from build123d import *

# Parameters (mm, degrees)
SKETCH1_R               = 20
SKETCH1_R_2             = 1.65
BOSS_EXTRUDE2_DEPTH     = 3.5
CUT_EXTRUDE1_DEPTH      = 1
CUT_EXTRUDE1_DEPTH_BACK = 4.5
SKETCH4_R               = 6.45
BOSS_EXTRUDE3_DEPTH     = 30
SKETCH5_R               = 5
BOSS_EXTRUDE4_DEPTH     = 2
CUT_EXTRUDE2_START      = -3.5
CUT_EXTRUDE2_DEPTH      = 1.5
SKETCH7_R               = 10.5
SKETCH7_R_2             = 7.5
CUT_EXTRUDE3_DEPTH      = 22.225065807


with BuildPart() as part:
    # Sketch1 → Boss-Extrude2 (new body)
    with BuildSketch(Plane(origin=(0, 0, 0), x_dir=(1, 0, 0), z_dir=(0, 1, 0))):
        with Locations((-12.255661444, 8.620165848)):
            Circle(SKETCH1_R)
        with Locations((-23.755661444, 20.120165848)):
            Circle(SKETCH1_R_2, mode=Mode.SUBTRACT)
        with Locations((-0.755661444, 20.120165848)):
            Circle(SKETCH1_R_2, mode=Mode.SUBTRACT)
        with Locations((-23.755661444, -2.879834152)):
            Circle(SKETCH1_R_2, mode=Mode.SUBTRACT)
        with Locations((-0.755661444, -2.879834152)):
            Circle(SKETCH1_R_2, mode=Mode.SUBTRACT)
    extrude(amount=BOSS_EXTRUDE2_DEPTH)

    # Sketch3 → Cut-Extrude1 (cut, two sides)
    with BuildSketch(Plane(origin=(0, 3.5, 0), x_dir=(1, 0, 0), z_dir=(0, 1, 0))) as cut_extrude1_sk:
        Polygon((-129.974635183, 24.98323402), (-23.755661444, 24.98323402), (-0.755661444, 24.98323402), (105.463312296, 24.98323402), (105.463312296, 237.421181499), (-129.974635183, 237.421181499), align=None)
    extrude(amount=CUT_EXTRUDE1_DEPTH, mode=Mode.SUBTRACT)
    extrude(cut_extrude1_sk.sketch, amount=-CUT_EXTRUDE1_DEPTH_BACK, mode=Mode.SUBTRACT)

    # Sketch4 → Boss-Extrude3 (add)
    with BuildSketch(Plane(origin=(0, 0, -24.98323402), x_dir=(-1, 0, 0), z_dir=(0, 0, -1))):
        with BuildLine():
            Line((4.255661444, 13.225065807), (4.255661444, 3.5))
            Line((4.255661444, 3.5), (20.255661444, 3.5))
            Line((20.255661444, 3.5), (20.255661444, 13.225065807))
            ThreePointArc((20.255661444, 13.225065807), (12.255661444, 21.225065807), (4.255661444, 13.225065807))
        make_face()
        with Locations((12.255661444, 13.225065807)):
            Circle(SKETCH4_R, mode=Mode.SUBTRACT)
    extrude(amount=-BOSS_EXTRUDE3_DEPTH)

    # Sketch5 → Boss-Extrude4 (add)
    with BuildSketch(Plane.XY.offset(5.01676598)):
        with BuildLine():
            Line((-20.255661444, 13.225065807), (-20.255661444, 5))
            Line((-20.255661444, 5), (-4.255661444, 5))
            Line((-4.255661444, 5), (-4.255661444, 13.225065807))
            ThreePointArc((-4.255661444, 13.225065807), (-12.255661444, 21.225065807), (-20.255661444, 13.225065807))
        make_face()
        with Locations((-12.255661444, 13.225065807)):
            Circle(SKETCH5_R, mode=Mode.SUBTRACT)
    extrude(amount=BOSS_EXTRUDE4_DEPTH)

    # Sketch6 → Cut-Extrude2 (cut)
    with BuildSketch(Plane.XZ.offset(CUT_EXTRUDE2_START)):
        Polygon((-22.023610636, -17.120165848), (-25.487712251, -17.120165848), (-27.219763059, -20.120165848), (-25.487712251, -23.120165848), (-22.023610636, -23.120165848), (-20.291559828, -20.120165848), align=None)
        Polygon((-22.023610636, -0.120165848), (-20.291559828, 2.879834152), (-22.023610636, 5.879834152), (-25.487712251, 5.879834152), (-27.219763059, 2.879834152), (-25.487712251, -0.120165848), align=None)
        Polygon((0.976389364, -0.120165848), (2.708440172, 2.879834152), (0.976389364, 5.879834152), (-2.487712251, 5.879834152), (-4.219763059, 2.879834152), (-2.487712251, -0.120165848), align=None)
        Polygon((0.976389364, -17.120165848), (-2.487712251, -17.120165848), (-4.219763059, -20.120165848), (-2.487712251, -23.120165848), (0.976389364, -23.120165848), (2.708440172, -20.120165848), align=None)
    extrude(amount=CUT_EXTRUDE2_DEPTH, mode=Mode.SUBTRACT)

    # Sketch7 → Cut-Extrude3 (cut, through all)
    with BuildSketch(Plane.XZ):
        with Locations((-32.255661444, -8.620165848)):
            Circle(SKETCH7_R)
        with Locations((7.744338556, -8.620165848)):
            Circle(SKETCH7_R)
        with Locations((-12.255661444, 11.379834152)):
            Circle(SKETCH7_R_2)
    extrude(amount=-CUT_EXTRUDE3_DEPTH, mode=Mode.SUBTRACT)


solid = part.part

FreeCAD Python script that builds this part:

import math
import FreeCAD as App
import Part
import Sketcher
from FreeCAD import Vector
Q = App.Units.Quantity

doc = App.newDocument("Part")
body = doc.addObject("PartDesign::Body", "Body")

# Sketch on XZ plane
sketch1 = body.newObject("Sketcher::SketchObject", "Sketch")
sketch1.AttachmentSupport = (doc.getObject("XZ_Plane"), [""])
sketch1.MapMode = "FlatFace"
sketch1.addGeometry([
    Part.Circle(Vector(-12.3, -8.6, 0), Vector(0, 0, 1), 20),  # 0
    Part.Circle(Vector(-23.8, 2.9, 0), Vector(0, 0, 1), 1.6),  # 1
    Part.Circle(Vector(-0.8, 2.9, 0), Vector(0, 0, 1), 1.6),  # 2
    Part.Circle(Vector(-23.8, -20.1, 0), Vector(0, 0, 1), 1.6),  # 3
    Part.Circle(Vector(-0.8, -20.1, 0), Vector(0, 0, 1), 1.6),  # 4
], False)
sketch1.addConstraint([
    Sketcher.Constraint("Equal", 1, 2),
    Sketcher.Constraint("Equal", 2, 3),
    Sketcher.Constraint("Equal", 3, 4),
    Sketcher.Constraint("Horizontal", 1, 3, 2, 3),
    Sketcher.Constraint("Horizontal", 3, 3, 4, 3),
    Sketcher.Constraint("Vertical", 1, 3, 3, 3),
    Sketcher.Constraint("Vertical", 2, 3, 4, 3),
    Sketcher.Constraint("Diameter", 0, 40.0),
    Sketcher.Constraint("Diameter", 1, 3.3),
    Sketcher.Constraint("DistanceX", 1, 3, 2, 3, 23.0),
    Sketcher.Constraint("DistanceY", 3, 3, 1, 3, 23.0),
    Sketcher.Constraint("DistanceX", 1, 3, 0, 3, 11.5),
    Sketcher.Constraint("DistanceY", 0, 3, 1, 3, 11.5),
    Sketcher.Constraint("DistanceX", 0, 3, -1, 1, 12.255661),
    Sketcher.Constraint("DistanceY", 0, 3, -1, 1, 8.620166),
])
pad1 = body.newObject("PartDesign::Pad", "Pad")
pad1.Profile = sketch1
pad1.Length = 3.5
pad1.Reversed = True

# Sketch on XZ plane
sketch2 = body.newObject("Sketcher::SketchObject", "Sketch001")
sketch2.AttachmentSupport = (doc.getObject("XZ_Plane"), [""])
sketch2.MapMode = "FlatFace"
sketch2.AttachmentOffset = App.Placement(Vector(0, 0, -3.5), App.Rotation())
sketch2.addGeometry([
    Part.LineSegment(Vector(-130, -25, 0), Vector(105, -25, 0)),
    Part.LineSegment(Vector(105, -25, 0), Vector(105, -237, 0)),
    Part.LineSegment(Vector(105, -237, 0), Vector(-130, -237, 0)),
    Part.LineSegment(Vector(-130, -237, 0), Vector(-130, -25, 0)),
], False)
sketch2.addConstraint([
    Sketcher.Constraint("Coincident", 0, 2, 1, 1),
    Sketcher.Constraint("Coincident", 1, 2, 2, 1),
    Sketcher.Constraint("Coincident", 2, 2, 3, 1),
    Sketcher.Constraint("Coincident", 3, 2, 0, 1),
    Sketcher.Constraint("Horizontal", 0),
    Sketcher.Constraint("Vertical", 1),
    Sketcher.Constraint("Horizontal", 2),
    Sketcher.Constraint("Vertical", 3),
    Sketcher.Constraint("DistanceX", 0, 1, 0, 2, 235.437947),
    Sketcher.Constraint("DistanceY", 1, 2, 1, 1, 212.437947),
    Sketcher.Constraint("DistanceY", 1, 2, -1, 1, 237.421181),
    Sketcher.Constraint("DistanceX", -1, 1, 0, 2, 105.463312),
])
pocket1 = body.newObject("PartDesign::Pocket", "Pocket")
pocket1.Profile = sketch2
pocket1.Type = "ThroughAll"
pocket1.Midplane = True

# Sketch on XY plane
sketch3 = body.newObject("Sketcher::SketchObject", "Sketch002")
sketch3.AttachmentSupport = (doc.getObject("XY_Plane"), [""])
sketch3.MapMode = "FlatFace"
sketch3.AttachmentOffset = App.Placement(Vector(0, 0, -24.983234), App.Rotation())
sketch3.addGeometry([
    Part.LineSegment(Vector(-4, 13, 0), Vector(-4, 4, 0)),  # 0
    Part.LineSegment(Vector(-4, 4, 0), Vector(-20, 4, 0)),  # 1
    Part.LineSegment(Vector(-20, 4, 0), Vector(-20, 13, 0)),  # 2
    Part.ArcOfCircle(Part.Circle(Vector(-12, 13, 0), Vector(0, 0, 1), 8), math.radians(0), math.radians(180)),  # 3
    Part.Circle(Vector(-12, 13, 0), Vector(0, 0, 1), 6),  # 4
], False)
sketch3.addConstraint([
    Sketcher.Constraint("Coincident", 0, 2, 1, 1),
    Sketcher.Constraint("Coincident", 1, 2, 2, 1),
    Sketcher.Constraint("Tangent", 2, 2, 3, 2),
    Sketcher.Constraint("Tangent", 3, 1, 0, 1),
    Sketcher.Constraint("Vertical", 0),
    Sketcher.Constraint("Horizontal", 1),
    Sketcher.Constraint("Vertical", 2),
    Sketcher.Constraint("Coincident", 4, 3, 3, 3),
    Sketcher.Constraint("Radius", 3, 8.0),
    Sketcher.Constraint("Diameter", 4, 12.9),
    Sketcher.Constraint("DistanceY", -1, 1, 0, 2, 3.5),
    Sketcher.Constraint("DistanceY", 0, 2, 0, 1, 9.725066),
    Sketcher.Constraint("DistanceX", 3, 3, -1, 1, 12.255661),
])
pad2 = body.newObject("PartDesign::Pad", "Pad001")
pad2.Profile = sketch3
pad2.Length = 30

# Sketch on XY plane
sketch4 = body.newObject("Sketcher::SketchObject", "Sketch003")
sketch4.AttachmentSupport = (doc.getObject("XY_Plane"), [""])
sketch4.MapMode = "FlatFace"
sketch4.AttachmentOffset = App.Placement(Vector(0, 0, 5.016766), App.Rotation())
sketch4.addGeometry([
    Part.LineSegment(Vector(-20, 13, 0), Vector(-20, 5, 0)),  # 0
    Part.LineSegment(Vector(-20, 5, 0), Vector(-4, 5, 0)),  # 1
    Part.LineSegment(Vector(-4, 5, 0), Vector(-4, 13, 0)),  # 2
    Part.ArcOfCircle(Part.Circle(Vector(-12, 13, 0), Vector(0, 0, 1), 8), math.radians(0), math.radians(180)),  # 3
    Part.Circle(Vector(-12, 13, 0), Vector(0, 0, 1), 5),  # 4
], False)
sketch4.addConstraint([
    Sketcher.Constraint("Coincident", 0, 2, 1, 1),
    Sketcher.Constraint("Coincident", 1, 2, 2, 1),
    Sketcher.Constraint("Tangent", 2, 2, 3, 1),
    Sketcher.Constraint("Tangent", 3, 2, 0, 1),
    Sketcher.Constraint("Vertical", 0),
    Sketcher.Constraint("Horizontal", 1),
    Sketcher.Constraint("Vertical", 2),
    Sketcher.Constraint("Coincident", 4, 3, 3, 3),
    Sketcher.Constraint("Diameter", 4, 10.0),
    Sketcher.Constraint("Radius", 3, 8.0),
    Sketcher.Constraint("DistanceY", -1, 1, 0, 2, 5.0),
    Sketcher.Constraint("DistanceY", 0, 2, 0, 1, 8.225066),
    Sketcher.Constraint("DistanceX", 3, 3, -1, 1, 12.255661),
])
pad3 = body.newObject("PartDesign::Pad", "Pad002")
pad3.Profile = sketch4
pad3.Length = 2

# Sketch on XZ plane
sketch5 = body.newObject("Sketcher::SketchObject", "Sketch004")
sketch5.AttachmentSupport = (doc.getObject("XZ_Plane"), [""])
sketch5.MapMode = "FlatFace"
sketch5.AttachmentOffset = App.Placement(Vector(0, 0, -3.5), App.Rotation())
sketch5.addGeometry([
    Part.LineSegment(Vector(-22, -17.1, 0), Vector(-25.5, -17.1, 0)),  # 0
    Part.LineSegment(Vector(-25.5, -17.1, 0), Vector(-27.2, -20.1, 0)),  # 1
    Part.LineSegment(Vector(-27.2, -20.1, 0), Vector(-25.5, -23.1, 0)),  # 2
    Part.LineSegment(Vector(-25.5, -23.1, 0), Vector(-22, -23.1, 0)),  # 3
    Part.LineSegment(Vector(-22, -23.1, 0), Vector(-20.3, -20.1, 0)),  # 4
    Part.LineSegment(Vector(-20.3, -20.1, 0), Vector(-22, -17.1, 0)),  # 5
    Part.LineSegment(Vector(-22, -0.1, 0), Vector(-20.3, 2.9, 0)),  # 6
    Part.LineSegment(Vector(-20.3, 2.9, 0), Vector(-22, 5.9, 0)),  # 7
    Part.LineSegment(Vector(-22, 5.9, 0), Vector(-25.5, 5.9, 0)),  # 8
    Part.LineSegment(Vector(-25.5, 5.9, 0), Vector(-27.2, 2.9, 0)),  # 9
    Part.LineSegment(Vector(-27.2, 2.9, 0), Vector(-25.5, -0.1, 0)),  # 10
    Part.LineSegment(Vector(-25.5, -0.1, 0), Vector(-22, -0.1, 0)),  # 11
    Part.LineSegment(Vector(1, -0.1, 0), Vector(2.7, 2.9, 0)),  # 12
    Part.LineSegment(Vector(2.7, 2.9, 0), Vector(1, 5.9, 0)),  # 13
    Part.LineSegment(Vector(1, 5.9, 0), Vector(-2.5, 5.9, 0)),  # 14
    Part.LineSegment(Vector(-2.5, 5.9, 0), Vector(-4.2, 2.9, 0)),  # 15
    Part.LineSegment(Vector(-4.2, 2.9, 0), Vector(-2.5, -0.1, 0)),  # 16
    Part.LineSegment(Vector(-2.5, -0.1, 0), Vector(1, -0.1, 0)),  # 17
    Part.LineSegment(Vector(1, -17.1, 0), Vector(-2.5, -17.1, 0)),  # 18
    Part.LineSegment(Vector(-2.5, -17.1, 0), Vector(-4.2, -20.1, 0)),  # 19
    Part.LineSegment(Vector(-4.2, -20.1, 0), Vector(-2.5, -23.1, 0)),  # 20
    Part.LineSegment(Vector(-2.5, -23.1, 0), Vector(1, -23.1, 0)),  # 21
    Part.LineSegment(Vector(1, -23.1, 0), Vector(2.7, -20.1, 0)),  # 22
    Part.LineSegment(Vector(2.7, -20.1, 0), Vector(1, -17.1, 0)),  # 23
], False)
sketch5.addConstraint([
    Sketcher.Constraint("Coincident", 0, 2, 1, 1),
    Sketcher.Constraint("Coincident", 1, 2, 2, 1),
    Sketcher.Constraint("Coincident", 2, 2, 3, 1),
    Sketcher.Constraint("Coincident", 3, 2, 4, 1),
    Sketcher.Constraint("Coincident", 4, 2, 5, 1),
    Sketcher.Constraint("Coincident", 5, 2, 0, 1),
    Sketcher.Constraint("Coincident", 6, 2, 7, 1),
    Sketcher.Constraint("Coincident", 7, 2, 8, 1),
    Sketcher.Constraint("Coincident", 8, 2, 9, 1),
    Sketcher.Constraint("Coincident", 9, 2, 10, 1),
    Sketcher.Constraint("Coincident", 10, 2, 11, 1),
    Sketcher.Constraint("Coincident", 11, 2, 6, 1),
    Sketcher.Constraint("Coincident", 12, 2, 13, 1),
    Sketcher.Constraint("Coincident", 13, 2, 14, 1),
    Sketcher.Constraint("Coincident", 14, 2, 15, 1),
    Sketcher.Constraint("Coincident", 15, 2, 16, 1),
    Sketcher.Constraint("Coincident", 16, 2, 17, 1),
    Sketcher.Constraint("Coincident", 17, 2, 12, 1),
    Sketcher.Constraint("Coincident", 18, 2, 19, 1),
    Sketcher.Constraint("Coincident", 19, 2, 20, 1),
    Sketcher.Constraint("Coincident", 20, 2, 21, 1),
    Sketcher.Constraint("Coincident", 21, 2, 22, 1),
    Sketcher.Constraint("Coincident", 22, 2, 23, 1),
    Sketcher.Constraint("Coincident", 23, 2, 18, 1),
    Sketcher.Constraint("Horizontal", 0),
    Sketcher.Constraint("Horizontal", 3),
    Sketcher.Constraint("Horizontal", 8),
    Sketcher.Constraint("Horizontal", 11),
    Sketcher.Constraint("Horizontal", 14),
    Sketcher.Constraint("Horizontal", 17),
    Sketcher.Constraint("Horizontal", 18),
    Sketcher.Constraint("Horizontal", 21),
    Sketcher.Constraint("Parallel", 1, 4),
    Sketcher.Constraint("Parallel", 2, 5),
    Sketcher.Constraint("Parallel", 4, 6),
    Sketcher.Constraint("Parallel", 5, 7),
    Sketcher.Constraint("Parallel", 6, 9),
    Sketcher.Constraint("Parallel", 7, 10),
    Sketcher.Constraint("Parallel", 9, 12),
    Sketcher.Constraint("Parallel", 10, 13),
    Sketcher.Constraint("Parallel", 12, 15),
    Sketcher.Constraint("Parallel", 13, 16),
    Sketcher.Constraint("Parallel", 15, 19),
    Sketcher.Constraint("Parallel", 16, 20),
    Sketcher.Constraint("Parallel", 19, 22),
    Sketcher.Constraint("Parallel", 20, 23),
    Sketcher.Constraint("Horizontal", 1, 2, 4, 2),
    Sketcher.Constraint("Horizontal", 6, 2, 9, 2),
    Sketcher.Constraint("Horizontal", 9, 2, 12, 2),
    Sketcher.Constraint("Horizontal", 8, 2, 13, 2),
    Sketcher.Constraint("Horizontal", 12, 2, 15, 2),
    Sketcher.Constraint("Horizontal", 11, 2, 16, 2),
    Sketcher.Constraint("Horizontal", 5, 2, 18, 2),
    Sketcher.Constraint("Horizontal", 4, 2, 19, 2),
    Sketcher.Constraint("Horizontal", 3, 2, 20, 2),
    Sketcher.Constraint("Horizontal", 19, 2, 22, 2),
    Sketcher.Constraint("Vertical", 0, 2, 2, 2),
    Sketcher.Constraint("Vertical", 3, 2, 5, 2),
    Sketcher.Constraint("Vertical", 4, 2, 6, 2),
    Sketcher.Constraint("Vertical", 5, 2, 7, 2),
    Sketcher.Constraint("Vertical", 2, 2, 8, 2),
    Sketcher.Constraint("Vertical", 8, 2, 10, 2),
    Sketcher.Constraint("Vertical", 16, 2, 18, 2),
    Sketcher.Constraint("Vertical", 17, 2, 21, 2),
    Sketcher.Constraint("Equal", 11, 14),
    Sketcher.Constraint("Angle", 1, Q("-120 deg")),
    Sketcher.Constraint("DistanceY", 1, 2, 0, 2, 3.0),
    Sketcher.Constraint("DistanceY", 5, 2, 6, 2, 20.0),
    Sketcher.Constraint("DistanceX", 6, 2, 12, 2, 23.0),
    Sketcher.Constraint("DistanceX", 0, 2, 0, 1, 3.464102),
    Sketcher.Constraint("DistanceX", 3, 2, -1, 1, 22.023611),
    Sketcher.Constraint("DistanceY", 0, 2, -1, 1, 17.120166),
])
pocket2 = body.newObject("PartDesign::Pocket", "Pocket001")
pocket2.Profile = sketch5
pocket2.Length = 1.5
pocket2.Reversed = True

# Sketch on XZ plane
sketch6 = body.newObject("Sketcher::SketchObject", "Sketch005")
sketch6.AttachmentSupport = (doc.getObject("XZ_Plane"), [""])
sketch6.MapMode = "FlatFace"
sketch6.addGeometry([
    Part.Circle(Vector(-32, -9, 0), Vector(0, 0, 1), 10),
    Part.Circle(Vector(8, -9, 0), Vector(0, 0, 1), 10),
    Part.Circle(Vector(-12, 11, 0), Vector(0, 0, 1), 8),
], False)
sketch6.addConstraint([
    Sketcher.Constraint("Equal", 0, 1),
    Sketcher.Constraint("Horizontal", 0, 3, 1, 3),
    Sketcher.Constraint("Diameter", 0, 21.0),
    Sketcher.Constraint("Diameter", 2, 15.0),
    Sketcher.Constraint("DistanceX", 0, 3, 1, 3, 40.0),
    Sketcher.Constraint("DistanceX", 0, 3, 2, 3, 20.0),
    Sketcher.Constraint("DistanceY", 0, 3, 2, 3, 20.0),
    Sketcher.Constraint("DistanceX", 0, 3, -1, 1, 32.255661),
    Sketcher.Constraint("DistanceY", 0, 3, -1, 1, 8.620166),
])
pocket3 = body.newObject("PartDesign::Pocket", "Pocket002")
pocket3.Profile = sketch6
pocket3.Type = "ThroughAll"

doc.recompute()
